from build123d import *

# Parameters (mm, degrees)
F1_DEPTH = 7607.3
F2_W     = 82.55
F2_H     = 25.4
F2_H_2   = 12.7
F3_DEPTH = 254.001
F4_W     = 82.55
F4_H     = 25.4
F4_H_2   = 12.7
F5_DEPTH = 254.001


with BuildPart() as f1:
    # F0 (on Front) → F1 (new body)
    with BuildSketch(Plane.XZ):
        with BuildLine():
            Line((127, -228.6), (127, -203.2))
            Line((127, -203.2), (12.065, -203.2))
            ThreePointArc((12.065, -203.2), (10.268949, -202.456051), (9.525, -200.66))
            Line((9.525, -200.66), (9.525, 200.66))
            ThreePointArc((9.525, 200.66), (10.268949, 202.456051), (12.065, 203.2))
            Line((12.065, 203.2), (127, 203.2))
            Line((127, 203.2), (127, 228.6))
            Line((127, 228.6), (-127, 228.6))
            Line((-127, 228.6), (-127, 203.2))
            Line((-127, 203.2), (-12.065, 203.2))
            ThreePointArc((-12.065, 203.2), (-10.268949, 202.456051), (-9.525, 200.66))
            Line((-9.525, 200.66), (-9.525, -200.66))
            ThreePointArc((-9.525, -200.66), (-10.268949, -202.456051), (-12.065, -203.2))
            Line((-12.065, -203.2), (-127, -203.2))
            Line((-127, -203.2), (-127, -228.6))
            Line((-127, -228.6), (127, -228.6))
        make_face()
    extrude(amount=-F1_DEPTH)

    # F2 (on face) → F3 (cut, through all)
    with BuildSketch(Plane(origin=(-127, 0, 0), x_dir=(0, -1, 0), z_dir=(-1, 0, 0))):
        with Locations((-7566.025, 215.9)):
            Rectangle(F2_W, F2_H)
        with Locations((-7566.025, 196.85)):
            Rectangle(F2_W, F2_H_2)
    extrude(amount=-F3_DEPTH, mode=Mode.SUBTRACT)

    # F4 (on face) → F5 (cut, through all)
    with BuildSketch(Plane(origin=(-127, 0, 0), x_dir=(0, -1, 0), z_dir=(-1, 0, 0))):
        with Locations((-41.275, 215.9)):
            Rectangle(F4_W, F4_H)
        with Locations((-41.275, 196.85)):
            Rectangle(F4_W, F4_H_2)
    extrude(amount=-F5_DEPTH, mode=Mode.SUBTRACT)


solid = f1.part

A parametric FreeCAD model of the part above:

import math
import FreeCAD as App
import Part
import Sketcher
from FreeCAD import Vector
Q = App.Units.Quantity


def add_polygon(sketch, points):
    """Adds a closed chain of lines whose ends are joined by coincident constraints."""
    first, n = sketch.GeometryCount, len(points)
    for a, b in zip(points, points[1:] + points[:1]):
        sketch.addGeometry(Part.LineSegment(App.Vector(*a, 0), App.Vector(*b, 0)), False)
    for i in range(n):
        sketch.addConstraint(Sketcher.Constraint("Coincident", first + i, 2, first + (i + 1) % n, 1))

doc = App.newDocument("Part")
body = doc.addObject("PartDesign::Body", "Body")

# Sketch on XZ plane
sketch1 = body.newObject("Sketcher::SketchObject", "Sketch")
sketch1.AttachmentSupport = (doc.getObject("XZ_Plane"), [""])
sketch1.MapMode = "FlatFace"
sketch1.addGeometry([
    Part.LineSegment(Vector(127, -228.6, 0), Vector(127, -203.2, 0)),  # 0
    Part.LineSegment(Vector(127, -203.2, 0), Vector(12.1, -203.2, 0)),  # 1
    Part.ArcOfCircle(Part.Circle(Vector(12.1, -200.7, 0), Vector(0, 0, 1), 2.5), math.radians(-180), math.radians(-90)),  # 2
    Part.LineSegment(Vector(9.5, -200.7, 0), Vector(9.5, 200.7, 0)),  # 3
    Part.ArcOfCircle(Part.Circle(Vector(12.1, 200.7, 0), Vector(0, 0, 1), 2.5), math.radians(90), math.radians(180)),  # 4
    Part.LineSegment(Vector(12.1, 203.2, 0), Vector(127, 203.2, 0)),  # 5
    Part.LineSegment(Vector(127, 203.2, 0), Vector(127, 228.6, 0)),  # 6
    Part.LineSegment(Vector(127, 228.6, 0), Vector(-127, 228.6, 0)),  # 7
    Part.LineSegment(Vector(-127, 228.6, 0), Vector(-127, 203.2, 0)),  # 8
    Part.LineSegment(Vector(-127, 203.2, 0), Vector(-12.1, 203.2, 0)),  # 9
    Part.ArcOfCircle(Part.Circle(Vector(-12.1, 200.7, 0), Vector(0, 0, 1), 2.5), math.radians(0), math.radians(90)),  # 10
    Part.LineSegment(Vector(-9.5, 200.7, 0), Vector(-9.5, -200.7, 0)),  # 11
    Part.ArcOfCircle(Part.Circle(Vector(-12.1, -200.7, 0), Vector(0, 0, 1), 2.5), math.radians(-90), math.radians(0)),  # 12
    Part.LineSegment(Vector(-12.1, -203.2, 0), Vector(-127, -203.2, 0)),  # 13
    Part.LineSegment(Vector(-127, -203.2, 0), Vector(-127, -228.6, 0)),  # 14
    Part.LineSegment(Vector(-127, -228.6, 0), Vector(127, -228.6, 0)),  # 15
], False)
sketch1.addConstraint([
    Sketcher.Constraint("Coincident", 0, 2, 1, 1),
    Sketcher.Constraint("Tangent", 1, 2, 2, 2),
    Sketcher.Constraint("Tangent", 2, 1, 3, 1),
    Sketcher.Constraint("Tangent", 3, 2, 4, 2),
    Sketcher.Constraint("Tangent", 4, 1, 5, 1),
    Sketcher.Constraint("Coincident", 5, 2, 6, 1),
    Sketcher.Constraint("Coincident", 6, 2, 7, 1),
    Sketcher.Constraint("Coincident", 7, 2, 8, 1),
    Sketcher.Constraint("Coincident", 8, 2, 9, 1),
    Sketcher.Constraint("Tangent", 9, 2, 10, 2),
    Sketcher.Constraint("Tangent", 10, 1, 11, 1),
    Sketcher.Constraint("Tangent", 11, 2, 12, 2),
    Sketcher.Constraint("Tangent", 12, 1, 13, 1),
    Sketcher.Constraint("Coincident", 13, 2, 14, 1),
    Sketcher.Constraint("Coincident", 14, 2, 15, 1),
    Sketcher.Constraint("Coincident", 15, 2, 0, 1),
    Sketcher.Constraint("Vertical", 0),
    Sketcher.Constraint("Horizontal", 1),
    Sketcher.Constraint("Vertical", 3),
    Sketcher.Constraint("Horizontal", 5),
    Sketcher.Constraint("Vertical", 6),
    Sketcher.Constraint("Horizontal", 7),
    Sketcher.Constraint("Vertical", 8),
    Sketcher.Constraint("Horizontal", 9),
    Sketcher.Constraint("Vertical", 11),
    Sketcher.Constraint("Horizontal", 13),
    Sketcher.Constraint("Vertical", 14),
    Sketcher.Constraint("Horizontal", 15),
    Sketcher.Constraint("Equal", 2, 4),
    Sketcher.Constraint("Equal", 4, 10),
    Sketcher.Constraint("Equal", 10, 12),
    Sketcher.Constraint("Symmetric", 2, 3, 10, 3, -1, 1),
    Sketcher.Constraint("Symmetric", 5, 2, 13, 2, -1, 1),
    Sketcher.Constraint("Symmetric", 7, 2, 15, 2, -1, 1),
    Sketcher.Constraint("Symmetric", 5, 2, 8, 2, -2),
    Sketcher.Constraint("Radius", 2, Q("0.1 in")),
    Sketcher.Constraint("DistanceX", 7, 2, 7, 1, Q("10 in")),
    Sketcher.Constraint("DistanceY", 0, 1, 0, 2, Q("1 in")),
    Sketcher.Constraint("DistanceY", 3, 1, 3, 2, Q("15.8 in")),
    Sketcher.Constraint("DistanceX", 1, 2, 1, 1, Q("4.525 in")),
])
pad1 = body.newObject("PartDesign::Pad", "Pad")
pad1.Profile = sketch1
pad1.Length = Q("299.5 in")
pad1.Reversed = True

# Sketch on YZ plane
sketch2 = body.newObject("Sketcher::SketchObject", "Sketch001")
sketch2.AttachmentSupport = (doc.getObject("YZ_Plane"), [""])
sketch2.MapMode = "FlatFace"
sketch2.AttachmentOffset = App.Placement(Vector(0, 0, -5 * 25.4), App.Rotation())
add_polygon(sketch2, [(7607, 229), (7607, 190), (7525, 190), (7525, 229)])  # lines 0-3
sketch2.addConstraint([
    Sketcher.Constraint("Vertical", 0),
    Sketcher.Constraint("Horizontal", 1),
    Sketcher.Constraint("Vertical", 2),
    Sketcher.Constraint("Horizontal", 3),
    Sketcher.Constraint("DistanceY", 0, 2, 0, 1, Q("1.5 in")),
    Sketcher.Constraint("DistanceY", -1, 1, 2, 2, Q("9 in")),
    Sketcher.Constraint("DistanceX", 1, 2, 1, 1, Q("3.25 in")),
    Sketcher.Constraint("DistanceX", -1, 1, 0, 2, Q("299.5 in")),
])
pocket1 = body.newObject("PartDesign::Pocket", "Pocket")
pocket1.Profile = sketch2
pocket1.Type = "ThroughAll"
pocket1.Reversed = True

# Sketch on YZ plane
sketch3 = body.newObject("Sketcher::SketchObject", "Sketch002")
sketch3.AttachmentSupport = (doc.getObject("YZ_Plane"), [""])
sketch3.MapMode = "FlatFace"
sketch3.AttachmentOffset = App.Placement(Vector(0, 0, -5 * 25.4), App.Rotation())
add_polygon(sketch3, [(83, 229), (83, 190), (0, 190), (0, 229)])  # lines 0-3
sketch3.addConstraint([
    Sketcher.Constraint("Vertical", 0),
    Sketcher.Constraint("Horizontal", 1),
    Sketcher.Constraint("Vertical", 2),
    Sketcher.Constraint("Horizontal", 3),
    Sketcher.Constraint("PointOnObject", 1, 2, -2),
    Sketcher.Constraint("DistanceY", 0, 2, 0, 1, Q("1.5 in")),
    Sketcher.Constraint("DistanceY", -1, 1, 2, 2, Q("9 in")),
    Sketcher.Constraint("DistanceX", 1, 2, 1, 1, Q("3.25 in")),
])
pocket2 = body.newObject("PartDesign::Pocket", "Pocket001")
pocket2.Profile = sketch3
pocket2.Type = "ThroughAll"
pocket2.Reversed = True

doc.recompute()
